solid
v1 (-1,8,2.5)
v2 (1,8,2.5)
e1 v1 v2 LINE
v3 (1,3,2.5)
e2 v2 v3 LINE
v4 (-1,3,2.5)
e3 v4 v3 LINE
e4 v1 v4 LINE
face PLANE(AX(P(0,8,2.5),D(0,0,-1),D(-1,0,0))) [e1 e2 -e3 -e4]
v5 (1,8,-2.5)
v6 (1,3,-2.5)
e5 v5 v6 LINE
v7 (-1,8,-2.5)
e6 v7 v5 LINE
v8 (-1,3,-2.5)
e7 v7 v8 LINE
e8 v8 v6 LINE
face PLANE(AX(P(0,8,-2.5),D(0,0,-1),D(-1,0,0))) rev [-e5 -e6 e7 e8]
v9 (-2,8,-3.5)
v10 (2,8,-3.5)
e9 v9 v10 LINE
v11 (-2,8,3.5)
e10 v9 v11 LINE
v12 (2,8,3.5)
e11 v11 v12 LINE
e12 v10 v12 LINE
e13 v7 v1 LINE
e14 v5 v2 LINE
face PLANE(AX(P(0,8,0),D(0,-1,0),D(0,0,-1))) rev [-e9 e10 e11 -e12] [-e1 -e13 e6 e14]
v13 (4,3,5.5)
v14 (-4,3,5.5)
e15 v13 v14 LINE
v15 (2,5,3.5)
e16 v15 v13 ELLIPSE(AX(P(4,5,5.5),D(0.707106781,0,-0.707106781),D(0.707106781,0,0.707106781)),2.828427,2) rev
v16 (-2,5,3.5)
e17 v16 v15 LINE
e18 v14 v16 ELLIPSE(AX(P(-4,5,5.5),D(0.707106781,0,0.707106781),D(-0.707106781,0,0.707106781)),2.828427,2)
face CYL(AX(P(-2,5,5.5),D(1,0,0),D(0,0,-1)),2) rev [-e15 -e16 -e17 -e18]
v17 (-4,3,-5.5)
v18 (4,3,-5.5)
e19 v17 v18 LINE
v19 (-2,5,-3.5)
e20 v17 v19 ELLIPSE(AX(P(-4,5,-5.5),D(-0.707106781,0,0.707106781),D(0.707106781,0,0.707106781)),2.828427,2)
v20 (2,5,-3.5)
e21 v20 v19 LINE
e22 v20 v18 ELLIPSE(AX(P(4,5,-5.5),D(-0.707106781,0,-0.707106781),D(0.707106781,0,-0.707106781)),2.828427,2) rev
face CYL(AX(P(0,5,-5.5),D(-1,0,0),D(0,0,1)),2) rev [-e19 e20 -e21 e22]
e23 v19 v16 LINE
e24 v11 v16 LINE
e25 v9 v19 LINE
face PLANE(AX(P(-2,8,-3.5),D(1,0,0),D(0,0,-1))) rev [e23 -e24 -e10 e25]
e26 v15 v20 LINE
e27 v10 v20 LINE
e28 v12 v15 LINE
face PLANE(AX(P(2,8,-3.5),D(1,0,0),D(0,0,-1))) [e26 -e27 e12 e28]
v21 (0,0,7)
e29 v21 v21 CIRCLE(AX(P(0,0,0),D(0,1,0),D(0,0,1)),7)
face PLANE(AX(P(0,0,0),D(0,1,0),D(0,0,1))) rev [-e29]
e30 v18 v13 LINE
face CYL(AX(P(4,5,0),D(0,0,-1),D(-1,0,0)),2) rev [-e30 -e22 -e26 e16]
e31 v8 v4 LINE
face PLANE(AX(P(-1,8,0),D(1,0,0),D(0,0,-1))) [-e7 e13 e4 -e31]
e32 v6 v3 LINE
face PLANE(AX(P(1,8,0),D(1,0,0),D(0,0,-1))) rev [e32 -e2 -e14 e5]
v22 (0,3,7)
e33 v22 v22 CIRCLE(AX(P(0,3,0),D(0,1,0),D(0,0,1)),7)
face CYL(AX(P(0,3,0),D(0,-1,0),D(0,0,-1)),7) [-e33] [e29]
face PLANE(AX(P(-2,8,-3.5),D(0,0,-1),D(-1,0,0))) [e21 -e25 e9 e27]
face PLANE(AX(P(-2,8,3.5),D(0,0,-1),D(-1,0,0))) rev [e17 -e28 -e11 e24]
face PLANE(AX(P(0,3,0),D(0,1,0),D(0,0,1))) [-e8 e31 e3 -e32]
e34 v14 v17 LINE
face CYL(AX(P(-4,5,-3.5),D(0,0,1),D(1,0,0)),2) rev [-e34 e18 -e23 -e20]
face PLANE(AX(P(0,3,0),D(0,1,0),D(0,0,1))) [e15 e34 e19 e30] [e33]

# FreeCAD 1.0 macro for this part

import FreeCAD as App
import Part
import Sketcher


def edges_at(feature, points):
    """Names of the edges that pass closest to the given points."""
    edges = feature.Shape.Edges
    near = lambda p: min(range(len(edges)), key=lambda i: edges[i].distToShape(Part.Vertex(*p))[0])
    return sorted({f"Edge{near(p) + 1}" for p in points})


def add_polygon(sketch, points):
    """Adds a closed chain of lines whose ends are joined by coincident constraints."""
    first, n = sketch.GeometryCount, len(points)
    for a, b in zip(points, points[1:] + points[:1]):
        sketch.addGeometry(Part.LineSegment(App.Vector(*a, 0), App.Vector(*b, 0)), False)
    for i in range(n):
        sketch.addConstraint(Sketcher.Constraint("Coincident", first + i, 2, first + (i + 1) % n, 1))

doc = App.newDocument("Part")
body = doc.addObject("PartDesign::Body", "Body")

sketch1 = body.newObject("Sketcher::SketchObject", "Sketch")
sketch1.AttachmentSupport = (doc.getObject("XZ_Plane"), [""])
sketch1.MapMode = "FlatFace"
sketch1.addGeometry(Part.Circle(App.Vector(0, 0, 0), App.Vector(0, 0, 1), 7), False)
sketch1.addConstraint(Sketcher.Constraint("Coincident", 0, 3, -1, 1))
sketch1.addConstraint(Sketcher.Constraint("Diameter", 0, 14.0))
pad1 = body.newObject("PartDesign::Pad", "Pad")
pad1.Profile = sketch1
pad1.Length = 3
pad1.Reversed = True

sketch2 = body.newObject("Sketcher::SketchObject", "Sketch001")
sketch2.AttachmentSupport = (doc.getObject("XZ_Plane"), [""])
sketch2.MapMode = "FlatFace"
sketch2.AttachmentOffset = App.Placement(App.Vector(0, 0, -3), App.Rotation())
add_polygon(sketch2, [(-2, -3.5), (-2, 3.5), (2, 3.5), (2, -3.5)])
add_polygon(sketch2, [(1, 2.5), (-1, 2.5), (-1, -2.5), (1, -2.5)])
sketch2.addConstraint(Sketcher.Constraint("Vertical", 0))
sketch2.addConstraint(Sketcher.Constraint("Horizontal", 1))
sketch2.addConstraint(Sketcher.Constraint("Vertical", 2))
sketch2.addConstraint(Sketcher.Constraint("Horizontal", 3))
sketch2.addConstraint(Sketcher.Constraint("Horizontal", 4))
sketch2.addConstraint(Sketcher.Constraint("Vertical", 5))
sketch2.addConstraint(Sketcher.Constraint("Horizontal", 6))
sketch2.addConstraint(Sketcher.Constraint("Vertical", 7))
sketch2.addConstraint(Sketcher.Constraint("Symmetric", 0, 2, 2, 2, -1, 1))
sketch2.addConstraint(Sketcher.Constraint("Symmetric", 4, 2, 6, 2, -1, 1))
sketch2.addConstraint(Sketcher.Constraint("DistanceX", 1, 1, 1, 2, 4.0))
sketch2.addConstraint(Sketcher.Constraint("DistanceX", 4, 2, 4, 1, 2.0))
sketch2.addConstraint(Sketcher.Constraint("DistanceY", 0, 1, 0, 2, 7.0))
sketch2.addConstraint(Sketcher.Constraint("DistanceY", 5, 2, 5, 1, 5.0))
pad2 = body.newObject("PartDesign::Pad", "Pad001")
pad2.Profile = sketch2
pad2.Length = 5
pad2.Reversed = True
doc.recompute()

fillet = body.newObject("PartDesign::Fillet", "Fillet")
fillet.Base = (pad2, edges_at(pad2, [
    (-2, 3, 0),
    (0, 3, -3.5),
    (2, 3, 0),
    (0, 3, 3.5),
]))
fillet.Radius = 2

doc.recompute()
